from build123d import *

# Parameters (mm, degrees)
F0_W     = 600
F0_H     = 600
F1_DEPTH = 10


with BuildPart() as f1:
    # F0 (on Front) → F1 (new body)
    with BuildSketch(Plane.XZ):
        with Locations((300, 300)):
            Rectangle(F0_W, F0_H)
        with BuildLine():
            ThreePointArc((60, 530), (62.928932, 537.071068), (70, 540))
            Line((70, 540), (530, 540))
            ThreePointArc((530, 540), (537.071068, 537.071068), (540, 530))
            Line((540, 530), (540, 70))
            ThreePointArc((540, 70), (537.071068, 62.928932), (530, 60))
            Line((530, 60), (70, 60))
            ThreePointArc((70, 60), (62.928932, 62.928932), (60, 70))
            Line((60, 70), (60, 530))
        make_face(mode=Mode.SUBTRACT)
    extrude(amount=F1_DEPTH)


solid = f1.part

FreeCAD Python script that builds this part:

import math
import FreeCAD as App
import Part
import Sketcher

V = App.Vector
Q = App.Units.Quantity


def add_polygon(sketch, points):
    """Adds a closed chain of lines whose ends are joined by coincident constraints."""
    first, n = sketch.GeometryCount, len(points)
    for a, b in zip(points, points[1:] + points[:1]):
        sketch.addGeometry(Part.LineSegment(App.Vector(*a, 0), App.Vector(*b, 0)), False)
    for i in range(n):
        sketch.addConstraint(Sketcher.Constraint("Coincident", first + i, 2, first + (i + 1) % n, 1))

doc = App.newDocument("Part")
body = doc.addObject("PartDesign::Body", "Body")

sketch1 = doc.addObject("Sketcher::SketchObject", "Sketch")
body.addObject(sketch1)
sketch1.AttachmentSupport = (doc.XZ_Plane, [""])
sketch1.MapMode = "FlatFace"
add_polygon(sketch1, [(0, 600), (0, 0), (600, 0), (600, 600)])
sketch1.addGeometry(Part.LineSegment(V(60, 70, 0), V(60, 530, 0)), False)
sketch1.addGeometry(Part.ArcOfCircle(Part.Circle(V(70, 530, 0), V(0, 0, 1), 10), math.radians(90), math.radians(180)), False)
sketch1.addGeometry(Part.LineSegment(V(70, 540, 0), V(530, 540, 0)), False)
sketch1.addGeometry(Part.ArcOfCircle(Part.Circle(V(530, 530, 0), V(0, 0, 1), 10), math.radians(0), math.radians(90)), False)
sketch1.addGeometry(Part.LineSegment(V(540, 530, 0), V(540, 70, 0)), False)
sketch1.addGeometry(Part.ArcOfCircle(Part.Circle(V(530, 70, 0), V(0, 0, 1), 10), math.radians(-90), math.radians(0)), False)
sketch1.addGeometry(Part.LineSegment(V(530, 60, 0), V(70, 60, 0)), False)
sketch1.addGeometry(Part.ArcOfCircle(Part.Circle(V(70, 70, 0), V(0, 0, 1), 10), math.radians(180), math.radians(270)), False)
sketch1.addConstraint([
    Sketcher.Constraint("Tangent", 4, 2, 5, 2),
    Sketcher.Constraint("Tangent", 5, 1, 6, 1),
    Sketcher.Constraint("Tangent", 6, 2, 7, 2),
    Sketcher.Constraint("Tangent", 7, 1, 8, 1),
    Sketcher.Constraint("Tangent", 8, 2, 9, 2),
    Sketcher.Constraint("Tangent", 9, 1, 10, 1),
    Sketcher.Constraint("Tangent", 10, 2, 11, 2),
    Sketcher.Constraint("Tangent", 11, 1, 4, 1),
    Sketcher.Constraint("Vertical", 0),
    Sketcher.Constraint("Horizontal", 1),
    Sketcher.Constraint("Vertical", 2),
    Sketcher.Constraint("Horizontal", 3),
    Sketcher.Constraint("Vertical", 4),
    Sketcher.Constraint("Horizontal", 6),
    Sketcher.Constraint("Vertical", 8),
    Sketcher.Constraint("Horizontal", 10),
    Sketcher.Constraint("Coincident", 0, 2, -1, 1),
    Sketcher.Constraint("Equal", 5, 7),
    Sketcher.Constraint("Equal", 7, 9),
    Sketcher.Constraint("Equal", 9, 11),
    Sketcher.Constraint("Equal", 3, 0),
    Sketcher.Constraint("Equal", 10, 4),
    Sketcher.Constraint("Radius", 5, Q("9.999999 mm")),
    Sketcher.Constraint("DistanceX", 1, 1, 1, 2, Q("600 mm")),
    Sketcher.Constraint("DistanceX", 6, 1, 6, 2, Q("460 mm")),
    Sketcher.Constraint("DistanceX", -1, 1, 5, 3, Q("69.999999 mm")),
    Sketcher.Constraint("DistanceY", -1, 1, 5, 3, Q("530.000001 mm")),
])
pad1 = doc.addObject("PartDesign::Pad", "Pad")
body.addObject(pad1)
pad1.Profile = sketch1
pad1.Length = 10

doc.recompute()
